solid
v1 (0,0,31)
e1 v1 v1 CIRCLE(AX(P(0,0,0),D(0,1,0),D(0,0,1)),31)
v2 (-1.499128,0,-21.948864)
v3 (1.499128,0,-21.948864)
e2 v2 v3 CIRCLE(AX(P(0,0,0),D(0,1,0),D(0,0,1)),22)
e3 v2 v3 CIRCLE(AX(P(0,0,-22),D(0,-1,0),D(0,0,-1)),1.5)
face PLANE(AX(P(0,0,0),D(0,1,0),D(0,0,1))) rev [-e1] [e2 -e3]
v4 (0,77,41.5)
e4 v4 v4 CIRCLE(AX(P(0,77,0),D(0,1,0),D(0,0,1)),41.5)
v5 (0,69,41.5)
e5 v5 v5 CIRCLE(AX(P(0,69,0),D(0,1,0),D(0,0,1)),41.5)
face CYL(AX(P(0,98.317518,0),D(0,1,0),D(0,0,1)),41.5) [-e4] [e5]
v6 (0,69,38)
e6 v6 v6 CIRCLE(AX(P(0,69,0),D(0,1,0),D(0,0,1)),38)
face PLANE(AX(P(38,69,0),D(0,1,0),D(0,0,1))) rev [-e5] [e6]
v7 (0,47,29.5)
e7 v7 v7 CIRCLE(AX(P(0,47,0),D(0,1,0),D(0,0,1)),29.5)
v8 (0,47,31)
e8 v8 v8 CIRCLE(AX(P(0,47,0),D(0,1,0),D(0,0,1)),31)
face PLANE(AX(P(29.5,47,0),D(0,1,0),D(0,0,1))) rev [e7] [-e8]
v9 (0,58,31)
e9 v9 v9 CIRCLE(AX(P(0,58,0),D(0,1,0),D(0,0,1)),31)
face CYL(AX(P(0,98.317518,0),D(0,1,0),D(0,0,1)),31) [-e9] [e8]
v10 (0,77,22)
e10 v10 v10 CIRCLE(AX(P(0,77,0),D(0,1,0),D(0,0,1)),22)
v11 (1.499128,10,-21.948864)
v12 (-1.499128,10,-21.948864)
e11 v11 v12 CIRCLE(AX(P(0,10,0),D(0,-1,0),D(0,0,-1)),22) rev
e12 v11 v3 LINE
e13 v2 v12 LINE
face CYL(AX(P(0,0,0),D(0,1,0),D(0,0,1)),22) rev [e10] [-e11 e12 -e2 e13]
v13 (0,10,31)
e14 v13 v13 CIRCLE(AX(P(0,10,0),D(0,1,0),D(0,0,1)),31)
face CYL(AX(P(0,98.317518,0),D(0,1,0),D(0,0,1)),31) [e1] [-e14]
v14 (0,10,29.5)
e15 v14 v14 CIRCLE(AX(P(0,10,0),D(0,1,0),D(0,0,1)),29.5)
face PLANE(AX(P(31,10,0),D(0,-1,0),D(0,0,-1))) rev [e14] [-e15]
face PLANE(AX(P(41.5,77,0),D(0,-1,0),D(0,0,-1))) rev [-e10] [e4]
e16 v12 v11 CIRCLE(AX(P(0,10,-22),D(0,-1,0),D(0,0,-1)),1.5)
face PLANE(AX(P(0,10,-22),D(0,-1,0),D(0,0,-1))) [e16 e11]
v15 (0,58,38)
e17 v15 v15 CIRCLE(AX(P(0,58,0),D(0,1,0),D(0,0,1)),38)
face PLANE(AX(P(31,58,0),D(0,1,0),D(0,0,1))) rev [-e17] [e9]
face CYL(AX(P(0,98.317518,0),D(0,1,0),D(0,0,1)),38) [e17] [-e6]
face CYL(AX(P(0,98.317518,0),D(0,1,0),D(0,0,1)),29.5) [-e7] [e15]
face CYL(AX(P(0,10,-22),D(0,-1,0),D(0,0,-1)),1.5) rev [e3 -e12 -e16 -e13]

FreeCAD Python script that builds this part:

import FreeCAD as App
import Part
import Sketcher

V = App.Vector
Q = App.Units.Quantity


def add_polygon(sketch, points):
    """Adds a closed chain of lines whose ends are joined by coincident constraints."""
    first, n = sketch.GeometryCount, len(points)
    for a, b in zip(points, points[1:] + points[:1]):
        sketch.addGeometry(Part.LineSegment(App.Vector(*a, 0), App.Vector(*b, 0)), False)
    for i in range(n):
        sketch.addConstraint(Sketcher.Constraint("Coincident", first + i, 2, first + (i + 1) % n, 1))

doc = App.newDocument("Part")
body = doc.addObject("PartDesign::Body", "Body")

# Sketch on XY plane
sketch1 = body.newObject("Sketcher::SketchObject", "Sketch")
sketch1.AttachmentSupport = (doc.getObject("XY_Plane"), [""])
sketch1.MapMode = "FlatFace"
add_polygon(sketch1, [(0, 0), (31, 0), (31, 10), (29.5, 10), (29.5, 47), (31, 47), (31, 58), (38, 58), (38, 69), (41.5, 69), (41.5, 77), (0, 77)])  # lines 0-11
sketch1.addConstraint([
    Sketcher.Constraint("Horizontal", 0),
    Sketcher.Constraint("Vertical", 1),
    Sketcher.Constraint("Horizontal", 2),
    Sketcher.Constraint("Vertical", 3),
    Sketcher.Constraint("Horizontal", 4),
    Sketcher.Constraint("Vertical", 5),
    Sketcher.Constraint("Horizontal", 6),
    Sketcher.Constraint("Vertical", 7),
    Sketcher.Constraint("Horizontal", 8),
    Sketcher.Constraint("Vertical", 9),
    Sketcher.Constraint("Horizontal", 10),
    Sketcher.Constraint("Vertical", 11),
    Sketcher.Constraint("Coincident", 11, 2, -1, 1),
    Sketcher.Constraint("Vertical", 1, 2, 4, 2),
    Sketcher.Constraint("Equal", 5, 7),
    Sketcher.Constraint("DistanceX", 0, 1, 0, 2, Q("31 mm")),
    Sketcher.Constraint("DistanceX", 6, 1, 6, 2, Q("7 mm")),
    Sketcher.Constraint("DistanceY", 1, 1, 1, 2, Q("10 mm")),
    Sketcher.Constraint("DistanceY", 3, 1, 3, 2, Q("37 mm")),
    Sketcher.Constraint("DistanceY", 5, 1, 5, 2, Q("11 mm")),
    Sketcher.Constraint("DistanceY", 9, 1, 9, 2, Q("8 mm")),
    Sketcher.Constraint("DistanceX", 2, 2, 2, 1, Q("1.5 mm")),
    Sketcher.Constraint("DistanceX", 8, 1, 8, 2, Q("3.5 mm")),
])
revolution = body.newObject("PartDesign::Revolution", "Revolution")
revolution.Profile = sketch1
revolution.ReferenceAxis = (sketch1, ["V_Axis"])
revolution.Angle = 360

# Sketch on XZ plane
sketch2 = body.newObject("Sketcher::SketchObject", "Sketch001")
sketch2.AttachmentSupport = (doc.getObject("XZ_Plane"), [""])
sketch2.MapMode = "FlatFace"
sketch2.AttachmentOffset = App.Placement(V(0, 0, -77), App.Rotation())
sketch2.addGeometry(Part.Circle(V(0, 0, 0), V(0, 0, 1), 22), False)
sketch2.addConstraint([
    Sketcher.Constraint("Coincident", 0, 3, -1, 1),
    Sketcher.Constraint("Diameter", 0, Q("44 mm")),
])
pocket1 = body.newObject("PartDesign::Pocket", "Pocket")
pocket1.Profile = sketch2
pocket1.Type = "ThroughAll"
pocket1.Reversed = True

# Sketch on XZ plane
sketch3 = body.newObject("Sketcher::SketchObject", "Sketch002")
sketch3.AttachmentSupport = (doc.getObject("XZ_Plane"), [""])
sketch3.MapMode = "FlatFace"
sketch3.addGeometry(Part.Circle(V(0, -22, 0), V(0, 0, 1), 1.5), False)
sketch3.addConstraint([
    Sketcher.Constraint("PointOnObject", 0, 3, -2),
    Sketcher.Constraint("Diameter", 0, Q("3 mm")),
    Sketcher.Constraint("DistanceY", 0, 3, -1, 1, Q("22 mm")),
])
pocket2 = body.newObject("PartDesign::Pocket", "Pocket001")
pocket2.Profile = sketch3
pocket2.Length = 10

doc.recompute()
